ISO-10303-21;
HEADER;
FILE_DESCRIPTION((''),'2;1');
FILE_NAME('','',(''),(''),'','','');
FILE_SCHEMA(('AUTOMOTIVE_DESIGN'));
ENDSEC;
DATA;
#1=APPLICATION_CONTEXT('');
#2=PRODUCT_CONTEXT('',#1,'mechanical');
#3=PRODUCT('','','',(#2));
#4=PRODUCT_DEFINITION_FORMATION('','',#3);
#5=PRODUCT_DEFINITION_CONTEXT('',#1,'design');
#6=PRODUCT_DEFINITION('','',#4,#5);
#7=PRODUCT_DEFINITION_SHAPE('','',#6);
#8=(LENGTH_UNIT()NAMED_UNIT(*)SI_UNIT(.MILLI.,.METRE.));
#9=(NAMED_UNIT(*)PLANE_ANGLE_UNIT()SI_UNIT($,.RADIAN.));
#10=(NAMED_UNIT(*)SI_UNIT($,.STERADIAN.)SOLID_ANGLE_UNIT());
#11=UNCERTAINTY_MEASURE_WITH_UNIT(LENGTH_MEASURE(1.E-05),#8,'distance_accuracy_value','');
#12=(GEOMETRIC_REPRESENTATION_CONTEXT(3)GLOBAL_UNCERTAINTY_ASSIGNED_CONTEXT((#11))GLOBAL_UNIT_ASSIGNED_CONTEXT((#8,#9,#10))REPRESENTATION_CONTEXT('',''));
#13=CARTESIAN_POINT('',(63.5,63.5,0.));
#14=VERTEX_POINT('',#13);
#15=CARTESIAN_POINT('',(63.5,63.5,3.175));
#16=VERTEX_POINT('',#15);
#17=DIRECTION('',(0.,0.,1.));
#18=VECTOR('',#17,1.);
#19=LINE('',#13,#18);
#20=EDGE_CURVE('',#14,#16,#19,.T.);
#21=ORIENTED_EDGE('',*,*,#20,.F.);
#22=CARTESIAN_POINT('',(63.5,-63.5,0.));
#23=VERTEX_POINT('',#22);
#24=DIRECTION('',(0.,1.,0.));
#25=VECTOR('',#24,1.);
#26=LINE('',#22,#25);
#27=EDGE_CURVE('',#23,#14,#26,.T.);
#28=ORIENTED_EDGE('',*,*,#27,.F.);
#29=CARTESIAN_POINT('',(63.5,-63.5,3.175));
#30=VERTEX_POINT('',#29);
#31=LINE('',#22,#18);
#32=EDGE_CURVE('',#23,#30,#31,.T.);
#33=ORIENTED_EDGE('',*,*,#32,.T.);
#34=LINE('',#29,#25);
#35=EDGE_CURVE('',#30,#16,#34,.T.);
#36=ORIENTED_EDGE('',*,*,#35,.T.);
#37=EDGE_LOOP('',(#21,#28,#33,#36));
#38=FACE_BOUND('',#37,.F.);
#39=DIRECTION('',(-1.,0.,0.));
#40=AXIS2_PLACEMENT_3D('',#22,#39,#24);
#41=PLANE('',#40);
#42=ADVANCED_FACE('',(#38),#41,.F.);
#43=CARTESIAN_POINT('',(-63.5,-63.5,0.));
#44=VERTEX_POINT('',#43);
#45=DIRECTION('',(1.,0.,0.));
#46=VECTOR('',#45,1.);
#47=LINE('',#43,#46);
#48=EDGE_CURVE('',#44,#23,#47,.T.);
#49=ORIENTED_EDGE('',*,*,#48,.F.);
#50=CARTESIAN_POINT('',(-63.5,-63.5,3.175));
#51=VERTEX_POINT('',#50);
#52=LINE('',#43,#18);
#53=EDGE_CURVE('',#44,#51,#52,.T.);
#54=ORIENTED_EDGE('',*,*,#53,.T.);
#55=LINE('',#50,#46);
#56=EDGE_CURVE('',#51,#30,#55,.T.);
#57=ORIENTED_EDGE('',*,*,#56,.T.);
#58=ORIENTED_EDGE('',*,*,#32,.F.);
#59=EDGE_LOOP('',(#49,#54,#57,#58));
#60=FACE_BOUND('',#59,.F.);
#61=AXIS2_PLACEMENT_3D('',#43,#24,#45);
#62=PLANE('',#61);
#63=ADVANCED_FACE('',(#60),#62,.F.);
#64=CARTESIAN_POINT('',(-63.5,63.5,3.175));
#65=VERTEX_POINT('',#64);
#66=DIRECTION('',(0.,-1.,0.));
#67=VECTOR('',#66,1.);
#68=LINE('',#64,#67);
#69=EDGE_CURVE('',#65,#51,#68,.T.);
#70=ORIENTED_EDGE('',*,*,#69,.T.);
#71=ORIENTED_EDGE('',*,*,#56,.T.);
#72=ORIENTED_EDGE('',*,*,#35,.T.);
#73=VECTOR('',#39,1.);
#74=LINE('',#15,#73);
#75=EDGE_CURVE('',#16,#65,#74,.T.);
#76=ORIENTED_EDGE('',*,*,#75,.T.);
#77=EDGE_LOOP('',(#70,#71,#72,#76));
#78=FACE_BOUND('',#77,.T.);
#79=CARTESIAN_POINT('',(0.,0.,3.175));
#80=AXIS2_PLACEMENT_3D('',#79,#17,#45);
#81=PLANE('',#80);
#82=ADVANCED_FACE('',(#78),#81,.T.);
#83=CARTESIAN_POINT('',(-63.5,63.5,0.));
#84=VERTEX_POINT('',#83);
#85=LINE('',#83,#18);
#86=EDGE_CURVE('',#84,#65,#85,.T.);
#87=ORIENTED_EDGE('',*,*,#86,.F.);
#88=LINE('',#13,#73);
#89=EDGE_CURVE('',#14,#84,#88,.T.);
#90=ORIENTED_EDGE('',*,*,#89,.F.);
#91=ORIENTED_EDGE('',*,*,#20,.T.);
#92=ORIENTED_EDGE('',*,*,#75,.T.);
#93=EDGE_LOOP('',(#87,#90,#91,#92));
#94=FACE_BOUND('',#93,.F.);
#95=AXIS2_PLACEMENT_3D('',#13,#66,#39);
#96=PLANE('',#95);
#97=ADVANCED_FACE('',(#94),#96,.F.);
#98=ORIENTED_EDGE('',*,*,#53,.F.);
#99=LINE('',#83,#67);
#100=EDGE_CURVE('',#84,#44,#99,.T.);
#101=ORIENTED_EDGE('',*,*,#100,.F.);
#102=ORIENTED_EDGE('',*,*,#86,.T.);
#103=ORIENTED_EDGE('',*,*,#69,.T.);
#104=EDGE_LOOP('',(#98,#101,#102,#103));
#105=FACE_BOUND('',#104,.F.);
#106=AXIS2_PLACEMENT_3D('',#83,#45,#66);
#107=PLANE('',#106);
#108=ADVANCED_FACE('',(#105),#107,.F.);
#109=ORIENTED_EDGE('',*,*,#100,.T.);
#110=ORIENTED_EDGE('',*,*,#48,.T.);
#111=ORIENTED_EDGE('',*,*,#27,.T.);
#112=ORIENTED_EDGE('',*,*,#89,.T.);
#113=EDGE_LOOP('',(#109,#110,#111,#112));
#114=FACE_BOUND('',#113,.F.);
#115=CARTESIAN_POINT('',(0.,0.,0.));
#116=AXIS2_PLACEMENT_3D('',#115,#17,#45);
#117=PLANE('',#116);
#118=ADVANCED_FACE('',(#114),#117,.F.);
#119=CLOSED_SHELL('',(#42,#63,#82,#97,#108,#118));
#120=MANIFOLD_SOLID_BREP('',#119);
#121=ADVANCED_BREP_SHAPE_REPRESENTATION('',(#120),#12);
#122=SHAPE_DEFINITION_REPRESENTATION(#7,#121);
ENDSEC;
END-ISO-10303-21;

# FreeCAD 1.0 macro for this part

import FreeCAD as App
import Part
import Sketcher

V = App.Vector
Q = App.Units.Quantity


def add_polygon(sketch, points):
    """Adds a closed chain of lines whose ends are joined by coincident constraints."""
    first, n = sketch.GeometryCount, len(points)
    for a, b in zip(points, points[1:] + points[:1]):
        sketch.addGeometry(Part.LineSegment(App.Vector(*a, 0), App.Vector(*b, 0)), False)
    for i in range(n):
        sketch.addConstraint(Sketcher.Constraint("Coincident", first + i, 2, first + (i + 1) % n, 1))

doc = App.newDocument("Part")
body = doc.addObject("PartDesign::Body", "Body")

sketch1 = doc.addObject("Sketcher::SketchObject", "Sketch")
body.addObject(sketch1)
sketch1.AttachmentSupport = (doc.XY_Plane, [""])
sketch1.MapMode = "FlatFace"
add_polygon(sketch1, [(-63.5, 63.5), (-63.5, -63.5), (63.5, -63.5), (63.5, 63.5)])
sketch1.addConstraint(Sketcher.Constraint("Vertical", 0))
sketch1.addConstraint(Sketcher.Constraint("Horizontal", 1))
sketch1.addConstraint(Sketcher.Constraint("Vertical", 2))
sketch1.addConstraint(Sketcher.Constraint("Horizontal", 3))
sketch1.addConstraint(Sketcher.Constraint("Symmetric", 0, 2, 2, 2, -1, 1))
sketch1.addConstraint(Sketcher.Constraint("Equal", 3, 0))
sketch1.addConstraint(Sketcher.Constraint("DistanceX", 1, 1, 1, 2, Q("5 in")))
pad1 = doc.addObject("PartDesign::Pad", "Pad")
body.addObject(pad1)
pad1.Profile = sketch1
pad1.Length = Q("0.125 in")

doc.recompute()
